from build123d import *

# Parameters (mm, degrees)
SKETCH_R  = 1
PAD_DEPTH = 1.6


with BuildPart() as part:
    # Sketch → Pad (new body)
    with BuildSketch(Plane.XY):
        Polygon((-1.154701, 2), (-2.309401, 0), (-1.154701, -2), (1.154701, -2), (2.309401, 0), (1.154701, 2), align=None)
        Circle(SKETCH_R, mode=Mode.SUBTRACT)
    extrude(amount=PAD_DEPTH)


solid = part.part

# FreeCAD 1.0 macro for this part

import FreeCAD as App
import Part
import Sketcher

V = App.Vector
Q = App.Units.Quantity

doc = App.newDocument("Part")
body = doc.addObject("PartDesign::Body", "Body")

# Sketch on XY plane
sketch1 = doc.addObject("Sketcher::SketchObject", "Sketch")
body.addObject(sketch1)
sketch1.AttachmentSupport = (doc.XY_Plane, [""])
sketch1.MapMode = "FlatFace"
sketch1.addGeometry([
    Part.LineSegment(V(-1.2, 2, 0), V(-2.3, 0, 0)),  # 0
    Part.LineSegment(V(-2.3, 0, 0), V(-1.2, -2, 0)),  # 1
    Part.LineSegment(V(-1.2, -2, 0), V(1.2, -2, 0)),  # 2
    Part.LineSegment(V(1.2, -2, 0), V(2.3, 0, 0)),  # 3
    Part.LineSegment(V(2.3, 0, 0), V(1.2, 2, 0)),  # 4
    Part.LineSegment(V(1.2, 2, 0), V(-1.2, 2, 0)),  # 5
    Part.Circle(V(0, 0, 0), V(0, 0, 1), 1),  # 6
], False)
sketch1.addConstraint([
    Sketcher.Constraint("Coincident", 0, 2, 1, 1),
    Sketcher.Constraint("Coincident", 1, 2, 2, 1),
    Sketcher.Constraint("Coincident", 2, 2, 3, 1),
    Sketcher.Constraint("Coincident", 3, 2, 4, 1),
    Sketcher.Constraint("Coincident", 4, 2, 5, 1),
    Sketcher.Constraint("Coincident", 5, 2, 0, 1),
    Sketcher.Constraint("Horizontal", 2),
    Sketcher.Constraint("Horizontal", 5),
    Sketcher.Constraint("Coincident", 6, 3, -1, 1),
    Sketcher.Constraint("Symmetric", 0, 2, 3, 2, -1, 1),
    Sketcher.Constraint("Symmetric", 1, 2, 4, 2, -1, 1),
    Sketcher.Constraint("PointOnObject", 0, 2, -1),
    Sketcher.Constraint("Parallel", 0, 3),
    Sketcher.Constraint("Vertical", 2, 2, 4, 2),
    Sketcher.Constraint("Diameter", 6, Q("2 mm")),
    Sketcher.Constraint("Angle", 0, Q("-119.999988 deg")),
    Sketcher.Constraint("DistanceY", 1, 2, -1, 1, Q("2 mm")),
    Sketcher.Constraint("DistanceX", 2, 1, 2, 2, Q("2.309402 mm")),
])
pad1 = doc.addObject("PartDesign::Pad", "Pad")
body.addObject(pad1)
pad1.Profile = sketch1
pad1.Length = 1.6

doc.recompute()
